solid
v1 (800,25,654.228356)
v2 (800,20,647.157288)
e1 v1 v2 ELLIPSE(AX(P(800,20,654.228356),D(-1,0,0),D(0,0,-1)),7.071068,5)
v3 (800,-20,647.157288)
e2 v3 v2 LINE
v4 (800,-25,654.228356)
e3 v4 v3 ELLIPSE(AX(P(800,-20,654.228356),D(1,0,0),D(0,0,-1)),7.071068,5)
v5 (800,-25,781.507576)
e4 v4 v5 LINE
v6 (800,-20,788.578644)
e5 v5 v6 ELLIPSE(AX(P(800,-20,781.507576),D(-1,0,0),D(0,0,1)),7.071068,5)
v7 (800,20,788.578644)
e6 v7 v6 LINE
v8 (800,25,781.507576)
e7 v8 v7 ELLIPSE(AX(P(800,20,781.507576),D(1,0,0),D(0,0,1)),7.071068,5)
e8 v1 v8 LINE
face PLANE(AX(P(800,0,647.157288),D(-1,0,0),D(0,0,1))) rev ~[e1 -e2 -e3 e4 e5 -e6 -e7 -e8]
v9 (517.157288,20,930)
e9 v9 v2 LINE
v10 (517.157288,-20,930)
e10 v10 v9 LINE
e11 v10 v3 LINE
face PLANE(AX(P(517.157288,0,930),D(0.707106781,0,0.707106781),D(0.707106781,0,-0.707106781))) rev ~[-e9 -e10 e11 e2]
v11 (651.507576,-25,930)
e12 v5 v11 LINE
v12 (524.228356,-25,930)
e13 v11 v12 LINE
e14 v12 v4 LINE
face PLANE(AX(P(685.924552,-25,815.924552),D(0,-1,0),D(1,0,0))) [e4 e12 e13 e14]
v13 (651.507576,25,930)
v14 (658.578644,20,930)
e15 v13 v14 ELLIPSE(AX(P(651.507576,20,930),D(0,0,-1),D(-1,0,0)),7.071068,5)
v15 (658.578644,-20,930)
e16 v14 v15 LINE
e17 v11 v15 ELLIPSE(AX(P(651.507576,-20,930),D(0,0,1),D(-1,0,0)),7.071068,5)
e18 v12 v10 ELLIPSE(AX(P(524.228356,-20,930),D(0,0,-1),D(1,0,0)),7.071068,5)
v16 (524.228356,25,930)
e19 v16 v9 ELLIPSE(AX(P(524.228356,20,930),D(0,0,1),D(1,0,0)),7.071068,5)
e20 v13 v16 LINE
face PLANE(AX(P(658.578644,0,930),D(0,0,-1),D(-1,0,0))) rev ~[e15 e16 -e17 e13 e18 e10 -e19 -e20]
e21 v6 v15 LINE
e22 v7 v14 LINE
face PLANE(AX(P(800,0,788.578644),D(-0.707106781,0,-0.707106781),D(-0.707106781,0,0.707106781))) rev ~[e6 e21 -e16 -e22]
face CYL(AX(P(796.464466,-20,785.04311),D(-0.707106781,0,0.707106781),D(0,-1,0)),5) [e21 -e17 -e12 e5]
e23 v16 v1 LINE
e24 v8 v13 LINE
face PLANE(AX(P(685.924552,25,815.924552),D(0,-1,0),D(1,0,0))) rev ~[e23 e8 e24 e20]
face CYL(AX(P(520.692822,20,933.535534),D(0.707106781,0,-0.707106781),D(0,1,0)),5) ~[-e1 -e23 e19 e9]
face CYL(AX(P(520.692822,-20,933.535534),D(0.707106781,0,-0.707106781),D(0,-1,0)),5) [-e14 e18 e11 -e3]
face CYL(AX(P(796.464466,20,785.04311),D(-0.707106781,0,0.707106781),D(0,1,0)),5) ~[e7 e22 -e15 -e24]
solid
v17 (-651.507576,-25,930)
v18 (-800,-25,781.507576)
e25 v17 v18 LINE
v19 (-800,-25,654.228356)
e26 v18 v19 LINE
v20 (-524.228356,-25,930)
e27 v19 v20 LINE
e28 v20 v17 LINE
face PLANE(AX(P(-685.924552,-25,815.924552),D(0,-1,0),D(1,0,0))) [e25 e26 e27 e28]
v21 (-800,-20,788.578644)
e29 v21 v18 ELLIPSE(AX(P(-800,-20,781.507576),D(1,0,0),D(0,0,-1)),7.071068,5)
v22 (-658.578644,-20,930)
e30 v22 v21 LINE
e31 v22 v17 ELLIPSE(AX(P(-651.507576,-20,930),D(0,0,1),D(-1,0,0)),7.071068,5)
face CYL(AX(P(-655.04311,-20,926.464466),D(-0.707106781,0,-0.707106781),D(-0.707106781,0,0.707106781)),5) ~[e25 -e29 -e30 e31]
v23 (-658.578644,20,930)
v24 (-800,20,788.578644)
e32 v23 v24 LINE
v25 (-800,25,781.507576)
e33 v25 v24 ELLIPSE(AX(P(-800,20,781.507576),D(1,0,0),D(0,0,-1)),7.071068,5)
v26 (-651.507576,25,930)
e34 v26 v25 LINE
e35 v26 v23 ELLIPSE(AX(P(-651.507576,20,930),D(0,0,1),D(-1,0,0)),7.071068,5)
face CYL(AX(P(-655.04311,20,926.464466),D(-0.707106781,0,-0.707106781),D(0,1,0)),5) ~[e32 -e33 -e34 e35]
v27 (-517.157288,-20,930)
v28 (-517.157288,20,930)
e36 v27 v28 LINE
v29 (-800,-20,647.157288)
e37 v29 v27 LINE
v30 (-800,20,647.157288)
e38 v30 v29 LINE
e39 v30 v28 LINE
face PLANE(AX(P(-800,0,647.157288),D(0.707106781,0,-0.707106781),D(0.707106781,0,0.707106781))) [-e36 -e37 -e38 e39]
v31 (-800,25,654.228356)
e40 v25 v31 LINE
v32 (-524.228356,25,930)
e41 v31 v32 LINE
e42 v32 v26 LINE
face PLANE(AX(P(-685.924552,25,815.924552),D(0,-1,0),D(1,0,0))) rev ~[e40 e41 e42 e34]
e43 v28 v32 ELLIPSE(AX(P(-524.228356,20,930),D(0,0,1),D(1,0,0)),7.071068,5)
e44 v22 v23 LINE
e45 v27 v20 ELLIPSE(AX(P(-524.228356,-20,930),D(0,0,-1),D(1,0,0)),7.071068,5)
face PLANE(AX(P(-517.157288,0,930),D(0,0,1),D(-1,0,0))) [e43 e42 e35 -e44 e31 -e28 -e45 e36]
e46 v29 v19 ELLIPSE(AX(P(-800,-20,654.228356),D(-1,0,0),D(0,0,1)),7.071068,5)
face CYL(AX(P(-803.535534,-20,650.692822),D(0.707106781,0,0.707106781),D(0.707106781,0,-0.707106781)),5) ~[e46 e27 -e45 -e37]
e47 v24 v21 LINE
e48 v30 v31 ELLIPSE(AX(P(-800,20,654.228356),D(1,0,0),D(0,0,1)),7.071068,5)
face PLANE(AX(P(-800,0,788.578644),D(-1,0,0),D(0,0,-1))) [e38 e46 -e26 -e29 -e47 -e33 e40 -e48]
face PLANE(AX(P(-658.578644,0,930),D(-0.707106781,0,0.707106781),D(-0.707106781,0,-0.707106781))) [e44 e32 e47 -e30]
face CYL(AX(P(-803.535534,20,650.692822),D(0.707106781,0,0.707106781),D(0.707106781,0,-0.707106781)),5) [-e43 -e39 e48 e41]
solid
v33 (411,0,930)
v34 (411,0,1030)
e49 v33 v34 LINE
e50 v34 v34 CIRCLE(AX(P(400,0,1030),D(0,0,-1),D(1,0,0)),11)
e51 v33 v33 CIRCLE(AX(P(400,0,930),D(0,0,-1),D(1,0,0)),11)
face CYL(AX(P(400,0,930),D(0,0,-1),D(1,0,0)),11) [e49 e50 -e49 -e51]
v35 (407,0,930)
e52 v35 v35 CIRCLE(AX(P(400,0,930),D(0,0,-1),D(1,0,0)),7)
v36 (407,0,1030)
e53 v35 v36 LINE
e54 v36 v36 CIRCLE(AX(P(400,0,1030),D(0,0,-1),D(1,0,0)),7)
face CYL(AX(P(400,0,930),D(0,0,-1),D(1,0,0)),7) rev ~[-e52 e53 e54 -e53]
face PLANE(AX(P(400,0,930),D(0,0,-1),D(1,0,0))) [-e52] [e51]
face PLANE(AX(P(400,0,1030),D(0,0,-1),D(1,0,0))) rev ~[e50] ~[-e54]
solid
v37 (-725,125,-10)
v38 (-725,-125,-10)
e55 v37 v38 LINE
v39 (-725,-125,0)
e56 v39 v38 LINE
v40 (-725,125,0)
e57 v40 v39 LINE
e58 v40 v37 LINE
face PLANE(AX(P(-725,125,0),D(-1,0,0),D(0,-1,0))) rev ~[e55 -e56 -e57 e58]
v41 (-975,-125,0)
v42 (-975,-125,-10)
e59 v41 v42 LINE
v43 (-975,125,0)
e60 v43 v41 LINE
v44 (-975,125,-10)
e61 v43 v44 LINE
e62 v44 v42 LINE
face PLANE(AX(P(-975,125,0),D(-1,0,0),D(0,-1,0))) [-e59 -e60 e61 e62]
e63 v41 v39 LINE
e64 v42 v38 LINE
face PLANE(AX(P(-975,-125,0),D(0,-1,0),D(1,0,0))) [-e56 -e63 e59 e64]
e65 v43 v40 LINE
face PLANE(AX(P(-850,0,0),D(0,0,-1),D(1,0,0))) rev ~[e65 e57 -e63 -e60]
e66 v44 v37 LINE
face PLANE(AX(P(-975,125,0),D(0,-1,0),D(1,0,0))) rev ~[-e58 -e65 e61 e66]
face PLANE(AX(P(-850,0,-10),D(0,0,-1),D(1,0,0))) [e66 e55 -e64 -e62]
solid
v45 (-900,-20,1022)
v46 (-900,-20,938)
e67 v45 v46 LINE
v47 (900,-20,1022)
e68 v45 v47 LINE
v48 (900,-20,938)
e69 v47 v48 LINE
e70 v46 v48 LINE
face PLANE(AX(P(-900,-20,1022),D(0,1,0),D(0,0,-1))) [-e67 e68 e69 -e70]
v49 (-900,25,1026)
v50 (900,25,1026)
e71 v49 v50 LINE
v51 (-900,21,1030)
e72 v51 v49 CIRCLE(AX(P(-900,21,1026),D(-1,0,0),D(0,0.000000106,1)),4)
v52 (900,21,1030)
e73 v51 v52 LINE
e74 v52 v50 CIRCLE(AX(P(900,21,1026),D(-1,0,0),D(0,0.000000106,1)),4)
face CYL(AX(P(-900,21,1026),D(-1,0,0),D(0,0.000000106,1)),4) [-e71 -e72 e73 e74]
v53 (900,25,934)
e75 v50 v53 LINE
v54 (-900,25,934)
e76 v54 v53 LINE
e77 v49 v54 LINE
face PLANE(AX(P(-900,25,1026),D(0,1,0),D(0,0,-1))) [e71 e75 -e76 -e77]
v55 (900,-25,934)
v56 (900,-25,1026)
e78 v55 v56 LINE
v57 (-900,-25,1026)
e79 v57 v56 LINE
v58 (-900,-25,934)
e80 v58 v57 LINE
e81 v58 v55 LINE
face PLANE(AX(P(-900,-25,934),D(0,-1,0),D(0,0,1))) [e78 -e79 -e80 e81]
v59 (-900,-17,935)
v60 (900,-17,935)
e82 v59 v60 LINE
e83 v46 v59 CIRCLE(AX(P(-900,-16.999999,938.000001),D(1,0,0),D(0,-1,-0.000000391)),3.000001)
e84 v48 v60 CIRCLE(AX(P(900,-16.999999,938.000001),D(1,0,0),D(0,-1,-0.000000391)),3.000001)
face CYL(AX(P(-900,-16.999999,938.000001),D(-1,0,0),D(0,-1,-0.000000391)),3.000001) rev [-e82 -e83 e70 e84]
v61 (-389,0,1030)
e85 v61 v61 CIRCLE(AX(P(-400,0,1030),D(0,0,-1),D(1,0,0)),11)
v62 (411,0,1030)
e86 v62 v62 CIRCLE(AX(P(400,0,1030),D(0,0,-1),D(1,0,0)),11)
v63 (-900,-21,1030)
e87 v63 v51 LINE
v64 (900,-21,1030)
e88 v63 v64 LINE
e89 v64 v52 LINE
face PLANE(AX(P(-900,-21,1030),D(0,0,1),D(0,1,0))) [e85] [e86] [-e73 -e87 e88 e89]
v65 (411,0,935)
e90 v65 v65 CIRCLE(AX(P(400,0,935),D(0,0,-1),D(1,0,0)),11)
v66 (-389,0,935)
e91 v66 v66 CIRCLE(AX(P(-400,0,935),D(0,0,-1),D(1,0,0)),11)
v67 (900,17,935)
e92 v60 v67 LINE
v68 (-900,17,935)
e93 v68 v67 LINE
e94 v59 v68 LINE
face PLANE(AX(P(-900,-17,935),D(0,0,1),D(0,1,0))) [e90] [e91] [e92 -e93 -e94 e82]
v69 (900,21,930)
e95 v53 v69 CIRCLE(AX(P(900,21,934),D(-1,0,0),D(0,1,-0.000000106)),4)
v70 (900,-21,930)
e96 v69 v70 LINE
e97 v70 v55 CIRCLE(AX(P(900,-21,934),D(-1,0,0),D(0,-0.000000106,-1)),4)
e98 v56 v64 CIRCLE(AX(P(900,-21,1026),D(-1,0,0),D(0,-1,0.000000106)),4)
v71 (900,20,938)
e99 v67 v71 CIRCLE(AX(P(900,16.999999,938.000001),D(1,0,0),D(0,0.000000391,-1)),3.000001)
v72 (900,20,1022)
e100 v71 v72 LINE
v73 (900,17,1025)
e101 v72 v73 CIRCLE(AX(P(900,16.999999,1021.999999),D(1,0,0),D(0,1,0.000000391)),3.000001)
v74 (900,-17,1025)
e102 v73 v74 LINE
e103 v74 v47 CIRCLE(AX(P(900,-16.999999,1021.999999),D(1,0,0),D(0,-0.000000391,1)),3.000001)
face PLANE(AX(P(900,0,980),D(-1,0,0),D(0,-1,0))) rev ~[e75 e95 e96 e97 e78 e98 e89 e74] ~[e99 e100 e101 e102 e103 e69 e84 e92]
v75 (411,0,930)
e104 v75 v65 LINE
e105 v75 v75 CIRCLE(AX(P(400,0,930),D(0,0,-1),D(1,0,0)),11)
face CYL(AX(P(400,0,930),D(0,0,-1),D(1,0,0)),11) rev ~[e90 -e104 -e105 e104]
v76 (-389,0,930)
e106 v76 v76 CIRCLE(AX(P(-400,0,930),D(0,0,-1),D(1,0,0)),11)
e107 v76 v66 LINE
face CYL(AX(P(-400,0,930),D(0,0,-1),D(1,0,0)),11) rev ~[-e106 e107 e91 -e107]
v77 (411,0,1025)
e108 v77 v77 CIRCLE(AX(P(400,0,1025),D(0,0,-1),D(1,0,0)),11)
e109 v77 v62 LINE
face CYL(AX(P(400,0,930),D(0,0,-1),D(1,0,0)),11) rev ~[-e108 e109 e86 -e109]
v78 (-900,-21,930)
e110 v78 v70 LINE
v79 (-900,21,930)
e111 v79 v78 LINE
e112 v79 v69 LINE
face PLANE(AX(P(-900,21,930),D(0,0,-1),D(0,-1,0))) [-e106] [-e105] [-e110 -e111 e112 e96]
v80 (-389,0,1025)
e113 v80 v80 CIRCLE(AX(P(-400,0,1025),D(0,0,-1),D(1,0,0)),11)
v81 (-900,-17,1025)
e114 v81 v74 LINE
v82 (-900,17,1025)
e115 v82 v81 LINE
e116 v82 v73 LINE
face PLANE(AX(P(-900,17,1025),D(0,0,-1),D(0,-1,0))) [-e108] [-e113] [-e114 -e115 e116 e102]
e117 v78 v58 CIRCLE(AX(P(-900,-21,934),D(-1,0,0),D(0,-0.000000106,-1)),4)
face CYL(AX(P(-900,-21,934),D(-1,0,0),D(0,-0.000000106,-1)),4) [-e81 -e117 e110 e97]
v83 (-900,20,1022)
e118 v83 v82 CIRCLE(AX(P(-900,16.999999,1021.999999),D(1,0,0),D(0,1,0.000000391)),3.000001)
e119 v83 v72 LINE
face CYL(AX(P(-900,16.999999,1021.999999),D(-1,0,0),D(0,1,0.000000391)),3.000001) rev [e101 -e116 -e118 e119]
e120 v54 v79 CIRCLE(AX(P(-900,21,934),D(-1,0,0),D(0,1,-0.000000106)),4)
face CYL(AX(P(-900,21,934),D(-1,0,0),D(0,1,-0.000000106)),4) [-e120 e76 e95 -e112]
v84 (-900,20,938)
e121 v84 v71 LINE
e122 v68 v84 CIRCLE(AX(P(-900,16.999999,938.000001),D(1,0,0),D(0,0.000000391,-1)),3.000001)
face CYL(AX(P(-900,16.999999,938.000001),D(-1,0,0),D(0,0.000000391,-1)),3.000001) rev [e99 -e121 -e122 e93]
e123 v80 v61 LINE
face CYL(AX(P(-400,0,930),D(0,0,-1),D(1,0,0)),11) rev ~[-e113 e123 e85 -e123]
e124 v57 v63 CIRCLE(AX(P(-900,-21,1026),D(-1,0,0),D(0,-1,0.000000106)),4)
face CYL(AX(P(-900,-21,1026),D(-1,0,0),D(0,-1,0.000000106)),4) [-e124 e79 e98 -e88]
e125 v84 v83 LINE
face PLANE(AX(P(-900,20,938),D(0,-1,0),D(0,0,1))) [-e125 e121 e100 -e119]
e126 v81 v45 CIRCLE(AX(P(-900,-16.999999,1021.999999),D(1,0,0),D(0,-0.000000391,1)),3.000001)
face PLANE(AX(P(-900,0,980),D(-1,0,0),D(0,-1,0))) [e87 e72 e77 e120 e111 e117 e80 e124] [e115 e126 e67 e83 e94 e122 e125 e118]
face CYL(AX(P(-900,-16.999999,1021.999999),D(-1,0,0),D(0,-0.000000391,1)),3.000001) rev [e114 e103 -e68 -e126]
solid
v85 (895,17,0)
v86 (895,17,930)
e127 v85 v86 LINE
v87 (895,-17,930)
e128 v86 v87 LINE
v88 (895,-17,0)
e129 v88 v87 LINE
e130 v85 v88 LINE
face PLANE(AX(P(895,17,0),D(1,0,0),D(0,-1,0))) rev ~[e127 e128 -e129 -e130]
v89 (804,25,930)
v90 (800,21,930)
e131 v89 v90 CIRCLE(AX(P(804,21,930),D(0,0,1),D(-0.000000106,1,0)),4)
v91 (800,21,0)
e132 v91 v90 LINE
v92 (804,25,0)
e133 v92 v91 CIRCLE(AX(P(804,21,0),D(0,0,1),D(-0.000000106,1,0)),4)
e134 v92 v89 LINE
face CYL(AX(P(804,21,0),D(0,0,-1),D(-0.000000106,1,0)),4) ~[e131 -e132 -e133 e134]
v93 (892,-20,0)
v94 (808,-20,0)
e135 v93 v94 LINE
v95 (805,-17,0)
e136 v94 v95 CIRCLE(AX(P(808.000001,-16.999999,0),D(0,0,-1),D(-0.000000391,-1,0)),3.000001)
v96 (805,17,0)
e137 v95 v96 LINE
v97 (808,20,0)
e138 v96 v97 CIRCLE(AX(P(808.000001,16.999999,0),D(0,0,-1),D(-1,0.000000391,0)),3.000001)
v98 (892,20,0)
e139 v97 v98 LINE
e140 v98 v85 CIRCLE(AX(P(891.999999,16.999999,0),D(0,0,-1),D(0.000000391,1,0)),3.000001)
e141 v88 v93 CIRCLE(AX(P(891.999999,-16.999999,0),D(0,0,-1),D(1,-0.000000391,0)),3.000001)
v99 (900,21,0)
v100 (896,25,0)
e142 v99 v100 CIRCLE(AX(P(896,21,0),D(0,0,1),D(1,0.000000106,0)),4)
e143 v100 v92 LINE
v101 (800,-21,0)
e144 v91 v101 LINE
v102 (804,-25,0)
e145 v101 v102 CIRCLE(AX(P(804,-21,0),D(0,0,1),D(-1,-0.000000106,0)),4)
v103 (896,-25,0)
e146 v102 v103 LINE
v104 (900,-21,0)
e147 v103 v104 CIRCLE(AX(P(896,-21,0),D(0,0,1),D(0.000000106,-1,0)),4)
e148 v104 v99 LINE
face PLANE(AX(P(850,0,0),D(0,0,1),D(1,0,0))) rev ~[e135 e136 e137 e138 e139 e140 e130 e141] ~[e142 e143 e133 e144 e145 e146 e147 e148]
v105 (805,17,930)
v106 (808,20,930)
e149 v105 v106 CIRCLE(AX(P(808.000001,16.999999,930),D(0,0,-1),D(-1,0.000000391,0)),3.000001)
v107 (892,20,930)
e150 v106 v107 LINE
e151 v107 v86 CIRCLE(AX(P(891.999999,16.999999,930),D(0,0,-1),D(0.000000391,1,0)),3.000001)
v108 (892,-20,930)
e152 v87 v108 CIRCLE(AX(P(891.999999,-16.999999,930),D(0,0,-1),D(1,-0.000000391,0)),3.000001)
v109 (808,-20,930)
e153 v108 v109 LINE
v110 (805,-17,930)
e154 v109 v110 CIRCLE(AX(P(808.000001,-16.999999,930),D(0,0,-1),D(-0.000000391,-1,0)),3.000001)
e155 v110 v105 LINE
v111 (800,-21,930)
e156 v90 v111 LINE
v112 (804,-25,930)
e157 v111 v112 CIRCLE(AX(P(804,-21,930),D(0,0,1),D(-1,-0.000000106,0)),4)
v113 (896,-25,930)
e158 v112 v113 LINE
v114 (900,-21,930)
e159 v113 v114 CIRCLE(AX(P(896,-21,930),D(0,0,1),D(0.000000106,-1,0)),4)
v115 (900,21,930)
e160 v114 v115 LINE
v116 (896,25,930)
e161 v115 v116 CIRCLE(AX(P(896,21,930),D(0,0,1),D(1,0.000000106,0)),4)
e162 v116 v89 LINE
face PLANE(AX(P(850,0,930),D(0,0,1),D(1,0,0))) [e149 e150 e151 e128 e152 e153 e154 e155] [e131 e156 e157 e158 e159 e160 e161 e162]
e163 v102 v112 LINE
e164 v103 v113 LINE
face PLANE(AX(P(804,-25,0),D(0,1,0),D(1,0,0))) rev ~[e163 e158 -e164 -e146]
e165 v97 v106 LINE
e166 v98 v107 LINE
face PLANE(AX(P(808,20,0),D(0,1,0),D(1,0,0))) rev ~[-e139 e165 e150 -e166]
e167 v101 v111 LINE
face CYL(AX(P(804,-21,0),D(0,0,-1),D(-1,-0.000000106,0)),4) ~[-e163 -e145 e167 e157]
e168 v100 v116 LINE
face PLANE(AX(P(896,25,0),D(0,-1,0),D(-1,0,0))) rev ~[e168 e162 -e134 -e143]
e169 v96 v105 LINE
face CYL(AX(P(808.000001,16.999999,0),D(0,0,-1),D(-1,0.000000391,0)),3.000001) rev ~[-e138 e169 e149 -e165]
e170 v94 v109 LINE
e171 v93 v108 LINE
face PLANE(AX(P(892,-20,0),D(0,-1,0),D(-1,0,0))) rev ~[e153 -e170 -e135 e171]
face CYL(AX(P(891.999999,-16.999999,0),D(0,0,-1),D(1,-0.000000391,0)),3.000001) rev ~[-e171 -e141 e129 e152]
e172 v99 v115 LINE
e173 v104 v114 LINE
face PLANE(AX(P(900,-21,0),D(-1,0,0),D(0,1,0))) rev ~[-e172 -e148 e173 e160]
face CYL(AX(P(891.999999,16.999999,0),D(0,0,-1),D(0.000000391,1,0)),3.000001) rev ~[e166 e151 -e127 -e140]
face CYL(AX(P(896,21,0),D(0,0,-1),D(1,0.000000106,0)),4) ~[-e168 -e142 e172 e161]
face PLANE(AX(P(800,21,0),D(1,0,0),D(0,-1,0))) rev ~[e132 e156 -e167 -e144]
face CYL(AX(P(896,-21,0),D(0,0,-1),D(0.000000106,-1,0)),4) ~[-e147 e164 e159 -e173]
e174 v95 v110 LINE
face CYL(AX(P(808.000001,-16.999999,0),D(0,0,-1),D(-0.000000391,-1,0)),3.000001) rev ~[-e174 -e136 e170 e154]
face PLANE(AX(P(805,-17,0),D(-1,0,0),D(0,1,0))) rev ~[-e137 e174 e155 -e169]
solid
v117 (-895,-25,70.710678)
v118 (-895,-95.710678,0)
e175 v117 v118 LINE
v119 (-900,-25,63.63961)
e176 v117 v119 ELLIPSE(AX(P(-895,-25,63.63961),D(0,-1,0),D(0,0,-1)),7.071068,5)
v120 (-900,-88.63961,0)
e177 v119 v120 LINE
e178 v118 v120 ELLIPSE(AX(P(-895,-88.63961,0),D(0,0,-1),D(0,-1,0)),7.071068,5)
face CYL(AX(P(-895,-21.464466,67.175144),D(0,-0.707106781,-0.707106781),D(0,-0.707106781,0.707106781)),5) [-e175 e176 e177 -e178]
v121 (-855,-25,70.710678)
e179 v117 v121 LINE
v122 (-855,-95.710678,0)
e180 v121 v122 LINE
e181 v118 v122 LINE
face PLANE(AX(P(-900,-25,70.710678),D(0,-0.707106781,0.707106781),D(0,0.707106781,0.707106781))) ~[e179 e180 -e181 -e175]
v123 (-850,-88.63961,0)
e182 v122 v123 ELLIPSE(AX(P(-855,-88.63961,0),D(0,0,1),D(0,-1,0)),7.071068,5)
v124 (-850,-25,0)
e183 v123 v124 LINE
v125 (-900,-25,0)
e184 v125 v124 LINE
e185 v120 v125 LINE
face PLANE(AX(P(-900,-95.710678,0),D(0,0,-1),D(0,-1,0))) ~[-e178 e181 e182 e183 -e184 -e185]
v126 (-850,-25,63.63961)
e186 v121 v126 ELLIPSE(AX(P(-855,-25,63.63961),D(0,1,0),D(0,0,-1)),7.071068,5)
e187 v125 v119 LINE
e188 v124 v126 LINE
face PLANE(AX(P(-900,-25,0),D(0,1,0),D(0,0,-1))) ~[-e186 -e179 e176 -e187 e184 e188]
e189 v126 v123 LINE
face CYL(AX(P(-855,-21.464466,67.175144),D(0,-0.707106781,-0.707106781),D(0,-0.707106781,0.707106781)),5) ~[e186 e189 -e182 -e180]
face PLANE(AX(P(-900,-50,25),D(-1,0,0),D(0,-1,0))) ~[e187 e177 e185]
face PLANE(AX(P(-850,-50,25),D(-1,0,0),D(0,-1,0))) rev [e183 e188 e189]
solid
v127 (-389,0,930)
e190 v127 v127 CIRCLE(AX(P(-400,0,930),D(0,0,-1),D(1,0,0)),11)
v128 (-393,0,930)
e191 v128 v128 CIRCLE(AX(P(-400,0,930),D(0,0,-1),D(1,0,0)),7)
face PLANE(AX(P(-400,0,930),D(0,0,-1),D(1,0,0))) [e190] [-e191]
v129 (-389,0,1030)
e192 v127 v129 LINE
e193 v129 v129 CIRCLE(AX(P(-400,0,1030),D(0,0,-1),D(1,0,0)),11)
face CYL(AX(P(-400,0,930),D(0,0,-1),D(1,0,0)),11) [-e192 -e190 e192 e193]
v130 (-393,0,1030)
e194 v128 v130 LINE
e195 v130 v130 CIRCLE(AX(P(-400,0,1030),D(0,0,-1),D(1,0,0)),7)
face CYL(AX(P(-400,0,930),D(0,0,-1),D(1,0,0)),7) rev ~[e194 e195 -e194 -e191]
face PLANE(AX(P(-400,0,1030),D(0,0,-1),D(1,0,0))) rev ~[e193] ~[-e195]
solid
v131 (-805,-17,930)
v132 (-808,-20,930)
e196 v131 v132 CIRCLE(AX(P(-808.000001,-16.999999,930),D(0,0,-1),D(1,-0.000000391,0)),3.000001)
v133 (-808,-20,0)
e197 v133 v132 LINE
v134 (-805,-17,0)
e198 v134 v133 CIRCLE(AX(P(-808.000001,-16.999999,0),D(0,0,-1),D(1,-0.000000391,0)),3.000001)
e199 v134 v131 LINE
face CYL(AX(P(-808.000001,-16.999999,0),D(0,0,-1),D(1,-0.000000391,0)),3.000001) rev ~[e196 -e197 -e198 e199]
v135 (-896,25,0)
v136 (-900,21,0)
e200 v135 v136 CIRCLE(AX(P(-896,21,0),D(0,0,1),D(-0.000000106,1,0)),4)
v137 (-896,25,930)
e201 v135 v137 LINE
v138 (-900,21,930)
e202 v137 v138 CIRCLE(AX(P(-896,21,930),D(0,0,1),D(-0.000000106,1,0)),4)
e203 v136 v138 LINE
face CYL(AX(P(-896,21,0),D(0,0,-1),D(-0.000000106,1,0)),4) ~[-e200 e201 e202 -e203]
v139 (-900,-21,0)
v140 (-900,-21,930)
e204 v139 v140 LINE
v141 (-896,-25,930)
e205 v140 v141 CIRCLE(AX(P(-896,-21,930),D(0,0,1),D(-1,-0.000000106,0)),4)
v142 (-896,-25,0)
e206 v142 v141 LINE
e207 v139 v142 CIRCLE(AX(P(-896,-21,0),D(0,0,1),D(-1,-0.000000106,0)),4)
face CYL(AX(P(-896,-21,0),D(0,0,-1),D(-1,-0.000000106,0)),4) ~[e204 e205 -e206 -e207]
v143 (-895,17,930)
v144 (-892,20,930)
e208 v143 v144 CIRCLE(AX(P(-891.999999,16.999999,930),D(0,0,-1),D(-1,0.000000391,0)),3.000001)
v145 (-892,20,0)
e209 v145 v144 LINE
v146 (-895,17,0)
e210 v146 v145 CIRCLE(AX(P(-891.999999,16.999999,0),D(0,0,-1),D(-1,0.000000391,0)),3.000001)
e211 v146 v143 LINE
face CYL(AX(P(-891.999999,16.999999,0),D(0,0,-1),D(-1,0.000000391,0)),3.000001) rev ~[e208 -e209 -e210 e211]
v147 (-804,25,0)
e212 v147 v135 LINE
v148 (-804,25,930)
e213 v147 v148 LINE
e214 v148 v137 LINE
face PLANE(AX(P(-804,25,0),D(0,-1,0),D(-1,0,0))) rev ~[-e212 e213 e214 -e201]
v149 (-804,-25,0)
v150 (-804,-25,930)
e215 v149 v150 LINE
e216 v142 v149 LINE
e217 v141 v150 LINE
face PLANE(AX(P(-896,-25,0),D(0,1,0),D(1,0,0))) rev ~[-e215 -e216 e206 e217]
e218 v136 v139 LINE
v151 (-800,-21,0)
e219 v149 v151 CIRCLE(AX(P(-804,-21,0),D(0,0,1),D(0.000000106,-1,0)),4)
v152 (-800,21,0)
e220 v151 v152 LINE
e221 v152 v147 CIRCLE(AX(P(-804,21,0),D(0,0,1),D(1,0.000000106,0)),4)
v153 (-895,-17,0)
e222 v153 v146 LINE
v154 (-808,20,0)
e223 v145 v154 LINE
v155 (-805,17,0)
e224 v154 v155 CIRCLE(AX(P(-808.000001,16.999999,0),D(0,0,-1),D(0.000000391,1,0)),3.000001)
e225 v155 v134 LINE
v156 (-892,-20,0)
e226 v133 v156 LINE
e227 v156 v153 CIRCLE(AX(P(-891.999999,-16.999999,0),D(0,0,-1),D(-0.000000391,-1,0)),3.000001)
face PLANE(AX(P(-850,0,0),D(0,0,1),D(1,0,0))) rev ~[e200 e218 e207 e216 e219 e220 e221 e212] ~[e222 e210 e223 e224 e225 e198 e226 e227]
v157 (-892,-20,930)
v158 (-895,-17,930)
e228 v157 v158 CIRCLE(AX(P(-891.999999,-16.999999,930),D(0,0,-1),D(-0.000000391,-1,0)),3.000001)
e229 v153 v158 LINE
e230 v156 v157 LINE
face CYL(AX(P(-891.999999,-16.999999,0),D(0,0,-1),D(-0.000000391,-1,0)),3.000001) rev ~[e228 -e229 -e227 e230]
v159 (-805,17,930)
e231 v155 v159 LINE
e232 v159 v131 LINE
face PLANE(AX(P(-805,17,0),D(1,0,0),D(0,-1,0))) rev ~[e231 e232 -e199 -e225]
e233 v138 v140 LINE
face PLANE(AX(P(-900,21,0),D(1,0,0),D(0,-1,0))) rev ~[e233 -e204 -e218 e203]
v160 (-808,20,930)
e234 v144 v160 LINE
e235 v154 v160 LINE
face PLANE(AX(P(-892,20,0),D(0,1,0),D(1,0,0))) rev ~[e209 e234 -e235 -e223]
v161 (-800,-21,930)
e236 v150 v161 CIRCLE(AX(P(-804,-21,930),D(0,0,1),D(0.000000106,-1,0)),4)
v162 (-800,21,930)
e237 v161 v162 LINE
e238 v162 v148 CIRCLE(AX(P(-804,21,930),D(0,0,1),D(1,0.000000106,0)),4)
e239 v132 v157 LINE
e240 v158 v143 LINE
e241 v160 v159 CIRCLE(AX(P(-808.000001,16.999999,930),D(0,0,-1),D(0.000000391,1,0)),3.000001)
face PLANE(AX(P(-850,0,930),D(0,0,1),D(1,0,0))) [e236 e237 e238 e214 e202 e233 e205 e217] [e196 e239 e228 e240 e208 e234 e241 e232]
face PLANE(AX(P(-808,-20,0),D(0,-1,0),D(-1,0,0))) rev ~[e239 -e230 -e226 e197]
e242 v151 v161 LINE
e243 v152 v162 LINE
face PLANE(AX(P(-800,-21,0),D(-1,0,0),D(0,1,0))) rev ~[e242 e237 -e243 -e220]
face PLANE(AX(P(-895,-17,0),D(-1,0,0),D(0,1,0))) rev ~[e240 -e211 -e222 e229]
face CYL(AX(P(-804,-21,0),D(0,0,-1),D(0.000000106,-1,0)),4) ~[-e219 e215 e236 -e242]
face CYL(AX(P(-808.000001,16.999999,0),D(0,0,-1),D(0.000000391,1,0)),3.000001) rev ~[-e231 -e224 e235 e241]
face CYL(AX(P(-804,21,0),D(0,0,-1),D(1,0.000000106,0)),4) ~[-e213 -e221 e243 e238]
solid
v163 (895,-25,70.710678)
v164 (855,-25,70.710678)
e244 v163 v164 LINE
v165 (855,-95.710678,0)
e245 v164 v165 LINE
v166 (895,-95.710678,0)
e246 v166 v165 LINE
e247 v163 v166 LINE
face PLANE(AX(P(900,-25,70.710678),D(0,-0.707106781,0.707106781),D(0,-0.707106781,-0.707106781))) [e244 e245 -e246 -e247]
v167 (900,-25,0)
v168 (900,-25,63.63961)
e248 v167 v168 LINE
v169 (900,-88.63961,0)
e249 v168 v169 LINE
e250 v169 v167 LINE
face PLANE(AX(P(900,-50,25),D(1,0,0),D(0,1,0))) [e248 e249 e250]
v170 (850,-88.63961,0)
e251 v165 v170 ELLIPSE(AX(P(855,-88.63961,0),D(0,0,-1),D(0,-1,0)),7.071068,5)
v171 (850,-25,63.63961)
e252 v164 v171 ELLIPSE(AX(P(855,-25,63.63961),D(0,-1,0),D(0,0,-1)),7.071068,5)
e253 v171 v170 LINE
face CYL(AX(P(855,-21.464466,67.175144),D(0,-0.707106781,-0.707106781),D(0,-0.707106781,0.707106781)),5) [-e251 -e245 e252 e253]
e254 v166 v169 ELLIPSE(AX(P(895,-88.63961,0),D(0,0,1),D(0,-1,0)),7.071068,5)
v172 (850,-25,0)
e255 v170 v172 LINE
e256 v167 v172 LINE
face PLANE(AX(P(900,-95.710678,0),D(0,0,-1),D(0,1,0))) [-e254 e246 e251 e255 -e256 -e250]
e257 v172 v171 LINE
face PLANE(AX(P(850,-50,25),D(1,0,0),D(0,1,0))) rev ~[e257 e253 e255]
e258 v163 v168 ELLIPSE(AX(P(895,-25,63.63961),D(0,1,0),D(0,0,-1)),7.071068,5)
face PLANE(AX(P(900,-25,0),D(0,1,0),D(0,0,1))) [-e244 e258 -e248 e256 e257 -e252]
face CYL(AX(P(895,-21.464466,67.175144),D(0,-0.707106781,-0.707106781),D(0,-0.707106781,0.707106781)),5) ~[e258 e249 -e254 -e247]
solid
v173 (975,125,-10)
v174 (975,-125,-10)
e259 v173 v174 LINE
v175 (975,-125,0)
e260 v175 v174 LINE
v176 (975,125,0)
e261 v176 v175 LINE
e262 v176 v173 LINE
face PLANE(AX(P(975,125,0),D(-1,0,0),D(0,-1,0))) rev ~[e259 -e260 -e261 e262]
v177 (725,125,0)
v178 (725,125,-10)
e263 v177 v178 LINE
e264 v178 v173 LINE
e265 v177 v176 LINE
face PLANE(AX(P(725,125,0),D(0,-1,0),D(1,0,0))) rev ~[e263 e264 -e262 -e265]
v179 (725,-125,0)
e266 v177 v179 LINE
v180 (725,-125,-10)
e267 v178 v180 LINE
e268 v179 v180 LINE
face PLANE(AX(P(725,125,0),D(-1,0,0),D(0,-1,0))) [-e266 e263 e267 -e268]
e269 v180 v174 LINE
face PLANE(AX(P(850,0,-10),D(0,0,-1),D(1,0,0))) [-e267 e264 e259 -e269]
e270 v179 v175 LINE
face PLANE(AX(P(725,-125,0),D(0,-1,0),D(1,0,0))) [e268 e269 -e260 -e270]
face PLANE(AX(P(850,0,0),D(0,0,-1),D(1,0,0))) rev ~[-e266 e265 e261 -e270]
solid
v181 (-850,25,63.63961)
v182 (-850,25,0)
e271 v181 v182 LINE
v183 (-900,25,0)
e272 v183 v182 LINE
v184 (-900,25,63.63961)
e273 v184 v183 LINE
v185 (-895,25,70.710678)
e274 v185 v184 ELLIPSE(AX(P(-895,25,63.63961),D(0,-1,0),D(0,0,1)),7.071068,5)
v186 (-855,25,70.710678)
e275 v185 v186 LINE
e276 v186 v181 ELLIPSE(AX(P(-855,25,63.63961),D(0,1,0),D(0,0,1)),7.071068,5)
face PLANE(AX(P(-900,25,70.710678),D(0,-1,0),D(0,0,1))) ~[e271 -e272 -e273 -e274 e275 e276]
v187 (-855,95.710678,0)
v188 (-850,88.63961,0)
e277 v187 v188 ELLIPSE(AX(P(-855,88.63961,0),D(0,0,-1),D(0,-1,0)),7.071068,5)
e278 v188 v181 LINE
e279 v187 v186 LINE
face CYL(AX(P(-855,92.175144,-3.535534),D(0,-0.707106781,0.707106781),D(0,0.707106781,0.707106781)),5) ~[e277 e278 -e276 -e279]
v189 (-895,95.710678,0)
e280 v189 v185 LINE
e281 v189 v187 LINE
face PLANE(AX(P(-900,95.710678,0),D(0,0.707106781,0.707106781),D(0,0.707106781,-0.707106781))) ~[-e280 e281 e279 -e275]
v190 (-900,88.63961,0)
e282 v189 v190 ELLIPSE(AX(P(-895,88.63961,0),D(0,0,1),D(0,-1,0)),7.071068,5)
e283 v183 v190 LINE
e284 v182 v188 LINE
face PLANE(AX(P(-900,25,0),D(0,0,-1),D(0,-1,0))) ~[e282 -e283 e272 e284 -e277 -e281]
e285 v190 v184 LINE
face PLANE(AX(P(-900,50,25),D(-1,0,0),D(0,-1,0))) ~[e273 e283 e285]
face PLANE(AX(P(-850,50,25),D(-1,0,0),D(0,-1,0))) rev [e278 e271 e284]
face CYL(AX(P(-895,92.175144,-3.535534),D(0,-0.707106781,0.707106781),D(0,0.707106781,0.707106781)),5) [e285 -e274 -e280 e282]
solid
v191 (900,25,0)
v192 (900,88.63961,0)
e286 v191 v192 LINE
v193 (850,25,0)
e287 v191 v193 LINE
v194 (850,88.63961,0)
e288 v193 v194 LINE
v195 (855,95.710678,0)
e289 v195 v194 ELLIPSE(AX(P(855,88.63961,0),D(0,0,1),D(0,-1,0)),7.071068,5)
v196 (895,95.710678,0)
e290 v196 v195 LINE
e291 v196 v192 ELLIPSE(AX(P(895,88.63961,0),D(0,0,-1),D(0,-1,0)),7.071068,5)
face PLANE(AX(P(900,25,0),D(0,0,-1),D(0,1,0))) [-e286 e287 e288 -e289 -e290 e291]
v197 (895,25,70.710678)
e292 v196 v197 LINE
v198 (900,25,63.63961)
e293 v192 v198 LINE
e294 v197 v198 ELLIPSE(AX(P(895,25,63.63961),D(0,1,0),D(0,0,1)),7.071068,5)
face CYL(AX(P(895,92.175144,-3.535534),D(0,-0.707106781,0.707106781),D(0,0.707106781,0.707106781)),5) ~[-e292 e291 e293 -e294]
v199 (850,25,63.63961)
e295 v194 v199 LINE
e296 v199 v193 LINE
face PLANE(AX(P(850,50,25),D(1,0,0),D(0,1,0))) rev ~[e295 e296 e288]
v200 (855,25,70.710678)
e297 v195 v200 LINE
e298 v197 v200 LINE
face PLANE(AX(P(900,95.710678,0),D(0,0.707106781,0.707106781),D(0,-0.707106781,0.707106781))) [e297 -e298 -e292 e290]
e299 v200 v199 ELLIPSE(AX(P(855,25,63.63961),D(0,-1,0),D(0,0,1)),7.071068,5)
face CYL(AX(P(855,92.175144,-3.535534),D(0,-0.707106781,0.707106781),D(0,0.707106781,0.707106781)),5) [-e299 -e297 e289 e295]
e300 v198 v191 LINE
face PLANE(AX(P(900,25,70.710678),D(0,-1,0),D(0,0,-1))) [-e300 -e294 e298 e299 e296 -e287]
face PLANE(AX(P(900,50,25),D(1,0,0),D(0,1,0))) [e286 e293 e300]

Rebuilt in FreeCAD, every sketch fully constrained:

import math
import FreeCAD as App
import Part
import Sketcher

V = App.Vector
Q = App.Units.Quantity


def edges_at(feature, points):
    """Names of the edges that pass closest to the given points."""
    edges = feature.Shape.Edges
    near = lambda p: min(range(len(edges)), key=lambda i: edges[i].distToShape(Part.Vertex(*p))[0])
    return sorted({f"Edge{near(p) + 1}" for p in points})


def add_polygon(sketch, points):
    """Adds a closed chain of lines whose ends are joined by coincident constraints."""
    first, n = sketch.GeometryCount, len(points)
    for a, b in zip(points, points[1:] + points[:1]):
        sketch.addGeometry(Part.LineSegment(App.Vector(*a, 0), App.Vector(*b, 0)), False)
    for i in range(n):
        sketch.addConstraint(Sketcher.Constraint("Coincident", first + i, 2, first + (i + 1) % n, 1))

doc = App.newDocument("Part")
body = doc.addObject("PartDesign::Body", "Body")
body.AllowCompound = True

# Sketch on XY plane
sketch1 = body.newObject("Sketcher::SketchObject", "Sketch")
sketch1.AttachmentSupport = (doc.getObject("XY_Plane"), [""])
sketch1.MapMode = "FlatFace"
sketch1.addGeometry(Part.LineSegment(V(-896, -25, 0), V(-804, -25, 0)), False)
sketch1.addGeometry(Part.ArcOfCircle(Part.Circle(V(-804, -21, 0), V(0, 0, 1), 4), math.radians(-90), math.radians(0)), False)
sketch1.addGeometry(Part.LineSegment(V(-800, -21, 0), V(-800, 21, 0)), False)
sketch1.addGeometry(Part.ArcOfCircle(Part.Circle(V(-804, 21, 0), V(0, 0, 1), 4), math.radians(0), math.radians(90)), False)
sketch1.addGeometry(Part.LineSegment(V(-804, 25, 0), V(-896, 25, 0)), False)
sketch1.addGeometry(Part.ArcOfCircle(Part.Circle(V(-896, 21, 0), V(0, 0, 1), 4), math.radians(90), math.radians(180)), False)
sketch1.addGeometry(Part.LineSegment(V(-900, 21, 0), V(-900, -21, 0)), False)
sketch1.addGeometry(Part.ArcOfCircle(Part.Circle(V(-896, -21, 0), V(0, 0, 1), 4), math.radians(-180), math.radians(-90)), False)
sketch1.addGeometry(Part.LineSegment(V(-805, 17, 0), V(-805, -17, 0)), False)
sketch1.addGeometry(Part.ArcOfCircle(Part.Circle(V(-808, -17, 0), V(0, 0, 1), 3), math.radians(-90), math.radians(0)), False)
sketch1.addGeometry(Part.LineSegment(V(-808, -20, 0), V(-892, -20, 0)), False)
sketch1.addGeometry(Part.ArcOfCircle(Part.Circle(V(-892, -17, 0), V(0, 0, 1), 3), math.radians(-180), math.radians(-90)), False)
sketch1.addGeometry(Part.LineSegment(V(-895, -17, 0), V(-895, 17, 0)), False)
sketch1.addGeometry(Part.ArcOfCircle(Part.Circle(V(-892, 17, 0), V(0, 0, 1), 3), math.radians(90), math.radians(180)), False)
sketch1.addGeometry(Part.LineSegment(V(-892, 20, 0), V(-808, 20, 0)), False)
sketch1.addGeometry(Part.ArcOfCircle(Part.Circle(V(-808, 17, 0), V(0, 0, 1), 3), math.radians(0), math.radians(90)), False)
sketch1.addGeometry(Part.ArcOfCircle(Part.Circle(V(804, 21, 0), V(0, 0, 1), 4), math.radians(90), math.radians(180)), False)
sketch1.addGeometry(Part.LineSegment(V(800, 21, 0), V(800, -21, 0)), False)
sketch1.addGeometry(Part.ArcOfCircle(Part.Circle(V(804, -21, 0), V(0, 0, 1), 4), math.radians(-180), math.radians(-90)), False)
sketch1.addGeometry(Part.LineSegment(V(804, -25, 0), V(896, -25, 0)), False)
sketch1.addGeometry(Part.ArcOfCircle(Part.Circle(V(896, -21, 0), V(0, 0, 1), 4), math.radians(-90), math.radians(0)), False)
sketch1.addGeometry(Part.LineSegment(V(900, -21, 0), V(900, 21, 0)), False)
sketch1.addGeometry(Part.ArcOfCircle(Part.Circle(V(896, 21, 0), V(0, 0, 1), 4), math.radians(0), math.radians(90)), False)
sketch1.addGeometry(Part.LineSegment(V(896, 25, 0), V(804, 25, 0)), False)
sketch1.addGeometry(Part.ArcOfCircle(Part.Circle(V(892, -17, 0), V(0, 0, 1), 3), math.radians(-90), math.radians(0)), False)
sketch1.addGeometry(Part.LineSegment(V(892, -20, 0), V(808, -20, 0)), False)
sketch1.addGeometry(Part.ArcOfCircle(Part.Circle(V(808, -17, 0), V(0, 0, 1), 3), math.radians(-180), math.radians(-90)), False)
sketch1.addGeometry(Part.LineSegment(V(805, -17, 0), V(805, 17, 0)), False)
sketch1.addGeometry(Part.ArcOfCircle(Part.Circle(V(808, 17, 0), V(0, 0, 1), 3), math.radians(90), math.radians(180)), False)
sketch1.addGeometry(Part.LineSegment(V(808, 20, 0), V(892, 20, 0)), False)
sketch1.addGeometry(Part.ArcOfCircle(Part.Circle(V(892, 17, 0), V(0, 0, 1), 3), math.radians(0), math.radians(90)), False)
sketch1.addGeometry(Part.LineSegment(V(895, 17, 0), V(895, -17, 0)), False)
sketch1.addConstraint(Sketcher.Constraint("Tangent", 0, 2, 1, 1))
sketch1.addConstraint(Sketcher.Constraint("Tangent", 1, 2, 2, 1))
sketch1.addConstraint(Sketcher.Constraint("Tangent", 2, 2, 3, 1))
sketch1.addConstraint(Sketcher.Constraint("Tangent", 3, 2, 4, 1))
sketch1.addConstraint(Sketcher.Constraint("Tangent", 4, 2, 5, 1))
sketch1.addConstraint(Sketcher.Constraint("Tangent", 5, 2, 6, 1))
sketch1.addConstraint(Sketcher.Constraint("Tangent", 6, 2, 7, 1))
sketch1.addConstraint(Sketcher.Constraint("Tangent", 7, 2, 0, 1))
sketch1.addConstraint(Sketcher.Constraint("Tangent", 8, 2, 9, 2))
sketch1.addConstraint(Sketcher.Constraint("Tangent", 9, 1, 10, 1))
sketch1.addConstraint(Sketcher.Constraint("Tangent", 10, 2, 11, 2))
sketch1.addConstraint(Sketcher.Constraint("Tangent", 11, 1, 12, 1))
sketch1.addConstraint(Sketcher.Constraint("Tangent", 12, 2, 13, 2))
sketch1.addConstraint(Sketcher.Constraint("Tangent", 13, 1, 14, 1))
sketch1.addConstraint(Sketcher.Constraint("Tangent", 14, 2, 15, 2))
sketch1.addConstraint(Sketcher.Constraint("Tangent", 15, 1, 8, 1))
sketch1.addConstraint(Sketcher.Constraint("Tangent", 16, 2, 17, 1))
sketch1.addConstraint(Sketcher.Constraint("Tangent", 17, 2, 18, 1))
sketch1.addConstraint(Sketcher.Constraint("Tangent", 18, 2, 19, 1))
sketch1.addConstraint(Sketcher.Constraint("Tangent", 19, 2, 20, 1))
sketch1.addConstraint(Sketcher.Constraint("Tangent", 20, 2, 21, 1))
sketch1.addConstraint(Sketcher.Constraint("Tangent", 21, 2, 22, 1))
sketch1.addConstraint(Sketcher.Constraint("Tangent", 22, 2, 23, 1))
sketch1.addConstraint(Sketcher.Constraint("Tangent", 23, 2, 16, 1))
sketch1.addConstraint(Sketcher.Constraint("Tangent", 24, 1, 25, 1))
sketch1.addConstraint(Sketcher.Constraint("Tangent", 25, 2, 26, 2))
sketch1.addConstraint(Sketcher.Constraint("Tangent", 26, 1, 27, 1))
sketch1.addConstraint(Sketcher.Constraint("Tangent", 27, 2, 28, 2))
sketch1.addConstraint(Sketcher.Constraint("Tangent", 28, 1, 29, 1))
sketch1.addConstraint(Sketcher.Constraint("Tangent", 29, 2, 30, 2))
sketch1.addConstraint(Sketcher.Constraint("Tangent", 30, 1, 31, 1))
sketch1.addConstraint(Sketcher.Constraint("Tangent", 31, 2, 24, 2))
sketch1.addConstraint(Sketcher.Constraint("Horizontal", 0))
sketch1.addConstraint(Sketcher.Constraint("Vertical", 2))
sketch1.addConstraint(Sketcher.Constraint("Horizontal", 4))
sketch1.addConstraint(Sketcher.Constraint("Vertical", 6))
sketch1.addConstraint(Sketcher.Constraint("Vertical", 8))
sketch1.addConstraint(Sketcher.Constraint("Horizontal", 10))
sketch1.addConstraint(Sketcher.Constraint("Vertical", 12))
sketch1.addConstraint(Sketcher.Constraint("Horizontal", 14))
sketch1.addConstraint(Sketcher.Constraint("Vertical", 17))
sketch1.addConstraint(Sketcher.Constraint("Horizontal", 19))
sketch1.addConstraint(Sketcher.Constraint("Vertical", 21))
sketch1.addConstraint(Sketcher.Constraint("Horizontal", 23))
sketch1.addConstraint(Sketcher.Constraint("Horizontal", 25))
sketch1.addConstraint(Sketcher.Constraint("Vertical", 27))
sketch1.addConstraint(Sketcher.Constraint("Horizontal", 29))
sketch1.addConstraint(Sketcher.Constraint("Vertical", 31))
sketch1.addConstraint(Sketcher.Constraint("Equal", 1, 3))
sketch1.addConstraint(Sketcher.Constraint("Equal", 3, 5))
sketch1.addConstraint(Sketcher.Constraint("Equal", 5, 7))
sketch1.addConstraint(Sketcher.Constraint("Equal", 9, 11))
sketch1.addConstraint(Sketcher.Constraint("Equal", 11, 13))
sketch1.addConstraint(Sketcher.Constraint("Equal", 13, 15))
sketch1.addConstraint(Sketcher.Constraint("Equal", 7, 16))
sketch1.addConstraint(Sketcher.Constraint("Equal", 16, 18))
sketch1.addConstraint(Sketcher.Constraint("Equal", 18, 20))
sketch1.addConstraint(Sketcher.Constraint("Equal", 20, 22))
sketch1.addConstraint(Sketcher.Constraint("Equal", 15, 24))
sketch1.addConstraint(Sketcher.Constraint("Equal", 24, 26))
sketch1.addConstraint(Sketcher.Constraint("Equal", 26, 28))
sketch1.addConstraint(Sketcher.Constraint("Equal", 28, 30))
sketch1.addConstraint(Sketcher.Constraint("Symmetric", 1, 3, 16, 3, -1, 1))
sketch1.addConstraint(Sketcher.Constraint("Symmetric", 5, 3, 20, 3, -1, 1))
sketch1.addConstraint(Sketcher.Constraint("Symmetric", 13, 3, 24, 3, -1, 1))
sketch1.addConstraint(Sketcher.Constraint("Symmetric", 9, 3, 28, 3, -1, 1))
sketch1.addConstraint(Sketcher.Constraint("Horizontal", 5, 3, 16, 3))
sketch1.addConstraint(Sketcher.Constraint("Horizontal", 11, 3, 24, 3))
sketch1.addConstraint(Sketcher.Constraint("Radius", 1, Q("4 mm")))
sketch1.addConstraint(Sketcher.Constraint("Radius", 9, Q("3.000001 mm")))
sketch1.addConstraint(Sketcher.Constraint("DistanceX", 0, 1, 0, 2, Q("92 mm")))
sketch1.addConstraint(Sketcher.Constraint("DistanceX", 10, 2, 10, 1, Q("84 mm")))
sketch1.addConstraint(Sketcher.Constraint("DistanceY", 2, 1, 2, 2, Q("42 mm")))
sketch1.addConstraint(Sketcher.Constraint("DistanceY", 8, 2, 8, 1, Q("34 mm")))
sketch1.addConstraint(Sketcher.Constraint("DistanceX", 1, 3, -1, 1, Q("804 mm")))
sketch1.addConstraint(Sketcher.Constraint("DistanceX", 9, 3, -1, 1, Q("808.000001 mm")))
pad1 = body.newObject("PartDesign::Pad", "Pad")
pad1.Profile = sketch1
pad1.Length = 930
body2 = doc.addObject("PartDesign::Body", "Body001")

# Sketch on YZ plane
sketch2 = body2.newObject("Sketcher::SketchObject", "Sketch001")
sketch2.AttachmentSupport = (doc.getObject("YZ_Plane001"), [""])
sketch2.MapMode = "FlatFace"
sketch2.AttachmentOffset = App.Placement(V(0, 0, -900), App.Rotation())
sketch2.addGeometry(Part.LineSegment(V(21, 930, 0), V(-21, 930, 0)), False)
sketch2.addGeometry(Part.ArcOfCircle(Part.Circle(V(-21, 934, 0), V(0, 0, 1), 4), math.radians(-180), math.radians(-90)), False)
sketch2.addGeometry(Part.LineSegment(V(-25, 934, 0), V(-25, 1026, 0)), False)
sketch2.addGeometry(Part.ArcOfCircle(Part.Circle(V(-21, 1026, 0), V(0, 0, 1), 4), math.radians(90), math.radians(180)), False)
sketch2.addGeometry(Part.LineSegment(V(-21, 1030, 0), V(21, 1030, 0)), False)
sketch2.addGeometry(Part.ArcOfCircle(Part.Circle(V(21, 1026, 0), V(0, 0, 1), 4), math.radians(0), math.radians(90)), False)
sketch2.addGeometry(Part.LineSegment(V(25, 1026, 0), V(25, 934, 0)), False)
sketch2.addGeometry(Part.ArcOfCircle(Part.Circle(V(21, 934, 0), V(0, 0, 1), 4), math.radians(-90), math.radians(0)), False)
sketch2.addGeometry(Part.LineSegment(V(-20, 1022, 0), V(-20, 938, 0)), False)
sketch2.addGeometry(Part.ArcOfCircle(Part.Circle(V(-17, 938, 0), V(0, 0, 1), 3), math.radians(-180), math.radians(-90)), False)
sketch2.addGeometry(Part.LineSegment(V(-17, 935, 0), V(17, 935, 0)), False)
sketch2.addGeometry(Part.ArcOfCircle(Part.Circle(V(17, 938, 0), V(0, 0, 1), 3), math.radians(-90), math.radians(0)), False)
sketch2.addGeometry(Part.LineSegment(V(20, 938, 0), V(20, 1022, 0)), False)
sketch2.addGeometry(Part.ArcOfCircle(Part.Circle(V(17, 1022, 0), V(0, 0, 1), 3), math.radians(0), math.radians(90)), False)
sketch2.addGeometry(Part.LineSegment(V(17, 1025, 0), V(-17, 1025, 0)), False)
sketch2.addGeometry(Part.ArcOfCircle(Part.Circle(V(-17, 1022, 0), V(0, 0, 1), 3), math.radians(90), math.radians(180)), False)
sketch2.addConstraint(Sketcher.Constraint("Tangent", 0, 2, 1, 2))
sketch2.addConstraint(Sketcher.Constraint("Tangent", 1, 1, 2, 1))
sketch2.addConstraint(Sketcher.Constraint("Tangent", 2, 2, 3, 2))
sketch2.addConstraint(Sketcher.Constraint("Tangent", 3, 1, 4, 1))
sketch2.addConstraint(Sketcher.Constraint("Tangent", 4, 2, 5, 2))
sketch2.addConstraint(Sketcher.Constraint("Tangent", 5, 1, 6, 1))
sketch2.addConstraint(Sketcher.Constraint("Tangent", 6, 2, 7, 2))
sketch2.addConstraint(Sketcher.Constraint("Tangent", 7, 1, 0, 1))
sketch2.addConstraint(Sketcher.Constraint("Tangent", 8, 2, 9, 1))
sketch2.addConstraint(Sketcher.Constraint("Tangent", 9, 2, 10, 1))
sketch2.addConstraint(Sketcher.Constraint("Tangent", 10, 2, 11, 1))
sketch2.addConstraint(Sketcher.Constraint("Tangent", 11, 2, 12, 1))
sketch2.addConstraint(Sketcher.Constraint("Tangent", 12, 2, 13, 1))
sketch2.addConstraint(Sketcher.Constraint("Tangent", 13, 2, 14, 1))
sketch2.addConstraint(Sketcher.Constraint("Tangent", 14, 2, 15, 1))
sketch2.addConstraint(Sketcher.Constraint("Tangent", 15, 2, 8, 1))
sketch2.addConstraint(Sketcher.Constraint("Horizontal", 0))
sketch2.addConstraint(Sketcher.Constraint("Vertical", 2))
sketch2.addConstraint(Sketcher.Constraint("Horizontal", 4))
sketch2.addConstraint(Sketcher.Constraint("Vertical", 6))
sketch2.addConstraint(Sketcher.Constraint("Vertical", 8))
sketch2.addConstraint(Sketcher.Constraint("Horizontal", 10))
sketch2.addConstraint(Sketcher.Constraint("Vertical", 12))
sketch2.addConstraint(Sketcher.Constraint("Horizontal", 14))
sketch2.addConstraint(Sketcher.Constraint("Equal", 1, 3))
sketch2.addConstraint(Sketcher.Constraint("Equal", 3, 5))
sketch2.addConstraint(Sketcher.Constraint("Equal", 5, 7))
sketch2.addConstraint(Sketcher.Constraint("Equal", 9, 11))
sketch2.addConstraint(Sketcher.Constraint("Equal", 11, 13))
sketch2.addConstraint(Sketcher.Constraint("Equal", 13, 15))
sketch2.addConstraint(Sketcher.Constraint("Radius", 1, Q("4 mm")))
sketch2.addConstraint(Sketcher.Constraint("Radius", 9, Q("3.000001 mm")))
sketch2.addConstraint(Sketcher.Constraint("DistanceX", 0, 2, 0, 1, Q("42 mm")))
sketch2.addConstraint(Sketcher.Constraint("DistanceX", 10, 1, 10, 2, Q("34 mm")))
sketch2.addConstraint(Sketcher.Constraint("DistanceY", 2, 1, 2, 2, Q("92 mm")))
sketch2.addConstraint(Sketcher.Constraint("DistanceY", 8, 2, 8, 1, Q("84 mm")))
sketch2.addConstraint(Sketcher.Constraint("DistanceX", 1, 3, -1, 1, Q("21 mm")))
sketch2.addConstraint(Sketcher.Constraint("DistanceY", -1, 1, 1, 3, Q("934 mm")))
sketch2.addConstraint(Sketcher.Constraint("DistanceX", 9, 3, -1, 1, Q("16.999999 mm")))
sketch2.addConstraint(Sketcher.Constraint("DistanceY", -1, 1, 9, 3, Q("938.000001 mm")))
pad2 = body2.newObject("PartDesign::Pad", "Pad001")
pad2.Profile = sketch2
pad2.Length = 1800

# Sketch on XY plane
sketch3 = body2.newObject("Sketcher::SketchObject", "Sketch002")
sketch3.AttachmentSupport = (doc.getObject("XY_Plane001"), [""])
sketch3.MapMode = "FlatFace"
sketch3.AttachmentOffset = App.Placement(V(0, 0, 930), App.Rotation())
sketch3.addGeometry(Part.Circle(V(-400, 0, 0), V(0, 0, 1), 11), False)
sketch3.addGeometry(Part.Circle(V(400, 0, 0), V(0, 0, 1), 11), False)
sketch3.addConstraint(Sketcher.Constraint("Equal", 0, 1))
sketch3.addConstraint(Sketcher.Constraint("Symmetric", 0, 3, 1, 3, -1, 1))
sketch3.addConstraint(Sketcher.Constraint("PointOnObject", 0, 3, -1))
sketch3.addConstraint(Sketcher.Constraint("Diameter", 0, Q("22 mm")))
sketch3.addConstraint(Sketcher.Constraint("DistanceX", 0, 3, -1, 1, Q("400 mm")))
pocket1 = body2.newObject("PartDesign::Pocket", "Pocket")
pocket1.Profile = sketch3
pocket1.Length = 100
pocket1.Reversed = True
body3 = doc.addObject("PartDesign::Body", "Body002")
body3.AllowCompound = True

# Sketch on XZ plane
sketch4 = body3.newObject("Sketcher::SketchObject", "Sketch003")
sketch4.AttachmentSupport = (doc.getObject("XZ_Plane002"), [""])
sketch4.MapMode = "FlatFace"
add_polygon(sketch4, [(800, 647), (800, 789), (659, 930), (517, 930)])  # lines 0-3
add_polygon(sketch4, [(-659, 930), (-800, 789), (-800, 647), (-517, 930)])  # lines 4-7
sketch4.addConstraint(Sketcher.Constraint("Vertical", 0))
sketch4.addConstraint(Sketcher.Constraint("Horizontal", 2))
sketch4.addConstraint(Sketcher.Constraint("Vertical", 5))
sketch4.addConstraint(Sketcher.Constraint("Horizontal", 7))
sketch4.addConstraint(Sketcher.Constraint("Symmetric", 0, 2, 4, 2, -2))
sketch4.addConstraint(Sketcher.Constraint("Symmetric", 2, 2, 6, 2, -2))
sketch4.addConstraint(Sketcher.Constraint("Parallel", 1, 3))
sketch4.addConstraint(Sketcher.Constraint("Perpendicular", 3, 4))
sketch4.addConstraint(Sketcher.Constraint("Parallel", 4, 6))
sketch4.addConstraint(Sketcher.Constraint("Horizontal", 3, 2, 5, 2))
sketch4.addConstraint(Sketcher.Constraint("Distance", 1, Q("200 mm")))
sketch4.addConstraint(Sketcher.Constraint("Distance", 3, Q("399.999999 mm")))
sketch4.addConstraint(Sketcher.Constraint("DistanceX", -1, 1, 0, 2, Q("800 mm")))
sketch4.addConstraint(Sketcher.Constraint("DistanceY", -1, 1, 1, 2, Q("930 mm")))
pad3 = body3.newObject("PartDesign::Pad", "Pad002")
pad3.Profile = sketch4
pad3.Length = 50
pad3.Midplane = True
doc.recompute()

fillet = body3.newObject("PartDesign::Fillet", "Fillet")
fillet.Base = (pad3, edges_at(pad3, [
    (658.579, 25, 788.579),
    (658.579, -25, 788.579),
    (-658.579, 25, 788.579),
    (-658.579, -25, 788.579),
]))
fillet.Radius = 5
doc.recompute()

fillet2 = body3.newObject("PartDesign::Fillet", "Fillet001")
fillet2.Base = (fillet, edges_at(fillet, [(-729.289, -25, 859.289), (-729.289, 25, 859.289)]))
fillet2.Radius = 5
doc.recompute()

fillet3 = body3.newObject("PartDesign::Fillet", "Fillet002")
fillet3.Base = (fillet2, edges_at(fillet2, [(729.289, 25, 859.289), (729.289, -25, 859.289)]))
fillet3.Radius = 5
body4 = doc.addObject("PartDesign::Body", "Body003")
body4.AllowCompound = True

# Sketch on XY plane
sketch5 = body4.newObject("Sketcher::SketchObject", "Sketch004")
sketch5.AttachmentSupport = (doc.getObject("XY_Plane003"), [""])
sketch5.MapMode = "FlatFace"
add_polygon(sketch5, [(725, -125), (725, 125), (975, 125), (975, -125)])  # lines 0-3
add_polygon(sketch5, [(-975, -125), (-975, 125), (-725, 125), (-725, -125)])  # lines 4-7
sketch5.addConstraint(Sketcher.Constraint("Vertical", 0))
sketch5.addConstraint(Sketcher.Constraint("Horizontal", 1))
sketch5.addConstraint(Sketcher.Constraint("Vertical", 2))
sketch5.addConstraint(Sketcher.Constraint("Horizontal", 3))
sketch5.addConstraint(Sketcher.Constraint("Vertical", 4))
sketch5.addConstraint(Sketcher.Constraint("Horizontal", 5))
sketch5.addConstraint(Sketcher.Constraint("Vertical", 6))
sketch5.addConstraint(Sketcher.Constraint("Horizontal", 7))
sketch5.addConstraint(Sketcher.Constraint("Symmetric", 2, 2, 4, 2, -1, 1))
sketch5.addConstraint(Sketcher.Constraint("Symmetric", 0, 2, 6, 2, -1, 1))
sketch5.addConstraint(Sketcher.Constraint("Horizontal", 1, 2, 4, 2))
sketch5.addConstraint(Sketcher.Constraint("Equal", 7, 0))
sketch5.addConstraint(Sketcher.Constraint("DistanceX", 1, 1, 1, 2, Q("250 mm")))
sketch5.addConstraint(Sketcher.Constraint("DistanceX", -1, 1, 0, 2, Q("725 mm")))
pad4 = body4.newObject("PartDesign::Pad", "Pad003")
pad4.Profile = sketch5
pad4.Length = 10
pad4.Reversed = True
body5 = doc.addObject("PartDesign::Body", "Body004")
body5.AllowCompound = True

# Sketch on YZ plane
sketch6 = body5.newObject("Sketcher::SketchObject", "Sketch005")
sketch6.AttachmentSupport = (doc.getObject("YZ_Plane004"), [""])
sketch6.MapMode = "FlatFace"
sketch6.AttachmentOffset = App.Placement(V(0, 0, 900), App.Rotation())
add_polygon(sketch6, [(-25, 0), (-25, 71), (-96, 0)])  # lines 0-2
add_polygon(sketch6, [(96, 0), (25, 71), (25, 0)])  # lines 3-5
sketch6.addConstraint(Sketcher.Constraint("Vertical", 0))
sketch6.addConstraint(Sketcher.Constraint("Horizontal", 2))
sketch6.addConstraint(Sketcher.Constraint("Vertical", 4))
sketch6.addConstraint(Sketcher.Constraint("Horizontal", 5))
sketch6.addConstraint(Sketcher.Constraint("Symmetric", 2, 2, 4, 2, -1, 1))
sketch6.addConstraint(Sketcher.Constraint("Symmetric", 1, 2, 5, 2, -2))
sketch6.addConstraint(Sketcher.Constraint("Perpendicular", 1, 3))
sketch6.addConstraint(Sketcher.Constraint("Horizontal", 0, 2, 3, 2))
sketch6.addConstraint(Sketcher.Constraint("Distance", 1, Q("100 mm")))
sketch6.addConstraint(Sketcher.Constraint("DistanceX", 0, 2, -1, 1, Q("25 mm")))
pad5 = body5.newObject("PartDesign::Pad", "Pad004")
pad5.Profile = sketch6
pad5.Length = 50
pad5.Reversed = True
doc.recompute()

fillet4 = body5.newObject("PartDesign::Fillet", "Fillet003")
fillet4.Base = (pad5, edges_at(pad5, [
    (900, 60.355, 35.355),
    (850, 60.355, 35.355),
    (900, -60.355, 35.355),
    (850, -60.355, 35.355),
]))
fillet4.Radius = 5
body6 = doc.addObject("PartDesign::Body", "Body005")
body6.AllowCompound = True
doc.recompute()

mirroring = doc.addObject("Part::Mirroring", "Mirroring")
mirroring.Source = body5
mirroring.Base = V(0, 0, 0)
mirroring.Normal = V(1, 0, 0)
body6.BaseFeature = mirroring
doc.recompute()
body7 = doc.addObject("PartDesign::Body", "Body006")
body7.AllowCompound = True

# Sketch on XY plane
sketch7 = body7.newObject("Sketcher::SketchObject", "Sketch006")
sketch7.AttachmentSupport = (doc.getObject("XY_Plane006"), [""])
sketch7.MapMode = "FlatFace"
sketch7.AttachmentOffset = App.Placement(V(0, 0, 930), App.Rotation())
sketch7.addGeometry(Part.Circle(V(-400, 0, 0), V(0, 0, 1), 11), False)
sketch7.addGeometry(Part.Circle(V(-400, 0, 0), V(0, 0, 1), 7), False)
sketch7.addGeometry(Part.Circle(V(400, 0, 0), V(0, 0, 1), 11), False)
sketch7.addGeometry(Part.Circle(V(400, 0, 0), V(0, 0, 1), 7), False)
sketch7.addConstraint(Sketcher.Constraint("Coincident", 1, 3, 0, 3))
sketch7.addConstraint(Sketcher.Constraint("Coincident", 3, 3, 2, 3))
sketch7.addConstraint(Sketcher.Constraint("Equal", 0, 2))
sketch7.addConstraint(Sketcher.Constraint("Equal", 1, 3))
sketch7.addConstraint(Sketcher.Constraint("Symmetric", 0, 3, 2, 3, -1, 1))
sketch7.addConstraint(Sketcher.Constraint("PointOnObject", 0, 3, -1))
sketch7.addConstraint(Sketcher.Constraint("Diameter", 0, Q("22 mm")))
sketch7.addConstraint(Sketcher.Constraint("Diameter", 1, Q("14 mm")))
sketch7.addConstraint(Sketcher.Constraint("DistanceX", 0, 3, -1, 1, Q("400 mm")))
pad6 = body7.newObject("PartDesign::Pad", "Pad005")
pad6.Profile = sketch7
pad6.Length = 100
mirroring.Visibility = False

doc.recompute()
